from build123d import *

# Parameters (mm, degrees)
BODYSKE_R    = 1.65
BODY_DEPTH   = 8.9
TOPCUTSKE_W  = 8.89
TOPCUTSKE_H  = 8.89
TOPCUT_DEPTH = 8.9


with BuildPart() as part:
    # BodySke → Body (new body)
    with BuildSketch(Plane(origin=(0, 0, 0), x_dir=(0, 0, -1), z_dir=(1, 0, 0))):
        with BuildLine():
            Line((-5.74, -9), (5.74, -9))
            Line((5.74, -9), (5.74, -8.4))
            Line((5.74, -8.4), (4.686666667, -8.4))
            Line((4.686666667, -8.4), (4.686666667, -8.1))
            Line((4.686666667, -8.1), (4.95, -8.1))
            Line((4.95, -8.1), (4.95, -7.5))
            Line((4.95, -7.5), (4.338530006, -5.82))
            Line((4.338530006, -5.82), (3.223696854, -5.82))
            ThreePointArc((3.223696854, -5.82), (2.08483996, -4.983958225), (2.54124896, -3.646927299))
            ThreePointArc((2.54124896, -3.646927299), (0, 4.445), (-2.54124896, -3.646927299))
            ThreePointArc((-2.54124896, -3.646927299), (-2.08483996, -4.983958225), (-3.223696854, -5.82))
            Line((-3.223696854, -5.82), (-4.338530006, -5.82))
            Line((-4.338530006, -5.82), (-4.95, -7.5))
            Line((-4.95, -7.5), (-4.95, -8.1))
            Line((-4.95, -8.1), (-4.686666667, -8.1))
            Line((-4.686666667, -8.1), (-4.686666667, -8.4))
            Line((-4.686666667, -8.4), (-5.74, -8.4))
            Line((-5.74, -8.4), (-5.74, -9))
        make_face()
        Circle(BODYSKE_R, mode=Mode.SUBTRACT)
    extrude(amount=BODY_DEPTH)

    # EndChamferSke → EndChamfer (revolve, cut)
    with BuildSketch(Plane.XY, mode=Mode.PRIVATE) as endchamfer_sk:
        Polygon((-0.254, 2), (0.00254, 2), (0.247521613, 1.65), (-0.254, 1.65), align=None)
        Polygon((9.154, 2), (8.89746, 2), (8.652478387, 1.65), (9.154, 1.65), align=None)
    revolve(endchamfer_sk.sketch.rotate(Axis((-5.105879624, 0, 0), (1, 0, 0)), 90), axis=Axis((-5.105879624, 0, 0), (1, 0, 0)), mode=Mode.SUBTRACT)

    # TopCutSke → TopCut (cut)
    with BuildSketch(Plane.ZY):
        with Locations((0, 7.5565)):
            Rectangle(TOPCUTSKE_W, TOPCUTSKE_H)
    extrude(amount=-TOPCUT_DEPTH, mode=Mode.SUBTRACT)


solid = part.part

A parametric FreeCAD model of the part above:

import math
import FreeCAD as App
import Part
import Sketcher
Q = App.Units.Quantity

doc = App.newDocument("Part")
body = doc.addObject("PartDesign::Body", "Body")

sketch1 = body.newObject("Sketcher::SketchObject", "Sketch")
sketch1.AttachmentSupport = (doc.getObject("YZ_Plane"), [""])
sketch1.MapMode = "FlatFace"
sketch1.addGeometry([
    Part.LineSegment(App.Vector(-9, 5.74, 0), App.Vector(-9, -5.74, 0)),
    Part.LineSegment(App.Vector(-9, -5.74, 0), App.Vector(-8.4, -5.74, 0)),
    Part.LineSegment(App.Vector(-8.4, -5.74, 0), App.Vector(-8.4, -4.686667, 0)),
    Part.LineSegment(App.Vector(-8.4, -4.686667, 0), App.Vector(-8.1, -4.686667, 0)),
    Part.LineSegment(App.Vector(-8.1, -4.686667, 0), App.Vector(-8.1, -4.95, 0)),
    Part.LineSegment(App.Vector(-8.1, -4.95, 0), App.Vector(-7.5, -4.95, 0)),
    Part.LineSegment(App.Vector(-7.5, -4.95, 0), App.Vector(-5.82, -4.33853, 0)),
    Part.LineSegment(App.Vector(-5.82, -4.33853, 0), App.Vector(-5.82, -3.223697, 0)),
    Part.ArcOfCircle(Part.Circle(App.Vector(-4.626303, -3.223697, 0), App.Vector(0, 0, 1), 1.193697), math.radians(34.869524), math.radians(180)),
    Part.ArcOfCircle(Part.Circle(App.Vector(0, 0, 0), App.Vector(0, 0, 1), 4.445), math.radians(-145.130476), math.radians(145.130476)),
    Part.ArcOfCircle(Part.Circle(App.Vector(-4.626303, 3.223697, 0), App.Vector(0, 0, 1), 1.193697), math.radians(180), math.radians(325.130476)),
    Part.LineSegment(App.Vector(-5.82, 3.223697, 0), App.Vector(-5.82, 4.33853, 0)),
    Part.LineSegment(App.Vector(-5.82, 4.33853, 0), App.Vector(-7.5, 4.95, 0)),
    Part.LineSegment(App.Vector(-7.5, 4.95, 0), App.Vector(-8.1, 4.95, 0)),
    Part.LineSegment(App.Vector(-8.1, 4.95, 0), App.Vector(-8.1, 4.686667, 0)),
    Part.LineSegment(App.Vector(-8.1, 4.686667, 0), App.Vector(-8.4, 4.686667, 0)),
    Part.LineSegment(App.Vector(-8.4, 4.686667, 0), App.Vector(-8.4, 5.74, 0)),
    Part.LineSegment(App.Vector(-8.4, 5.74, 0), App.Vector(-9, 5.74, 0)),
    Part.Circle(App.Vector(0, 0, 0), App.Vector(0, 0, 1), 1.65),
], False)
sketch1.addConstraint([
    Sketcher.Constraint("Coincident", 0, 2, 1, 1),
    Sketcher.Constraint("Coincident", 1, 2, 2, 1),
    Sketcher.Constraint("Coincident", 2, 2, 3, 1),
    Sketcher.Constraint("Coincident", 3, 2, 4, 1),
    Sketcher.Constraint("Coincident", 4, 2, 5, 1),
    Sketcher.Constraint("Coincident", 5, 2, 6, 1),
    Sketcher.Constraint("Coincident", 6, 2, 7, 1),
    Sketcher.Constraint("Tangent", 7, 2, 8, 2),
    Sketcher.Constraint("Tangent", 8, 1, 9, 1),
    Sketcher.Constraint("Tangent", 9, 2, 10, 2),
    Sketcher.Constraint("Tangent", 10, 1, 11, 1),
    Sketcher.Constraint("Coincident", 11, 2, 12, 1),
    Sketcher.Constraint("Coincident", 12, 2, 13, 1),
    Sketcher.Constraint("Coincident", 13, 2, 14, 1),
    Sketcher.Constraint("Coincident", 14, 2, 15, 1),
    Sketcher.Constraint("Coincident", 15, 2, 16, 1),
    Sketcher.Constraint("Coincident", 16, 2, 17, 1),
    Sketcher.Constraint("Coincident", 17, 2, 0, 1),
    Sketcher.Constraint("Vertical", 0),
    Sketcher.Constraint("Horizontal", 1),
    Sketcher.Constraint("Vertical", 2),
    Sketcher.Constraint("Horizontal", 3),
    Sketcher.Constraint("Vertical", 4),
    Sketcher.Constraint("Horizontal", 5),
    Sketcher.Constraint("Vertical", 7),
    Sketcher.Constraint("Vertical", 11),
    Sketcher.Constraint("Horizontal", 13),
    Sketcher.Constraint("Vertical", 14),
    Sketcher.Constraint("Horizontal", 15),
    Sketcher.Constraint("Vertical", 16),
    Sketcher.Constraint("Horizontal", 17),
    Sketcher.Constraint("Coincident", 9, 3, -1, 1),
    Sketcher.Constraint("Coincident", 18, 3, -1, 1),
    Sketcher.Constraint("Equal", 8, 10),
    Sketcher.Constraint("Symmetric", 6, 2, 11, 2, -1),
    Sketcher.Constraint("Symmetric", 5, 2, 12, 2, -1),
    Sketcher.Constraint("Symmetric", 3, 2, 14, 2, -1),
    Sketcher.Constraint("Symmetric", 1, 2, 16, 2, -1),
    Sketcher.Constraint("Equal", 1, 5),
    Sketcher.Constraint("Diameter", 18, Q("3.3 mm")),
    Sketcher.Constraint("Angle", 6, Q("20 deg")),
    Sketcher.Constraint("DistanceX", 1, 1, 1, 2, Q("0.6 mm")),
    Sketcher.Constraint("DistanceX", 3, 1, 3, 2, Q("0.3 mm")),
    Sketcher.Constraint("DistanceX", 0, 2, -1, 1, Q("9 mm")),
    Sketcher.Constraint("Radius", 9, Q("4.445 mm")),
    Sketcher.Constraint("DistanceY", 0, 2, 0, 1, Q("11.48 mm")),
    Sketcher.Constraint("DistanceY", 4, 2, -1, 1, Q("4.95 mm")),
    Sketcher.Constraint("DistanceX", 6, 2, -1, 1, Q("5.82 mm")),
    Sketcher.Constraint("Radius", 8, Q("1.193697 mm")),
    Sketcher.Constraint("DistanceY", 2, 1, 2, 2, Q("1.053333 mm")),
])
pad1 = body.newObject("PartDesign::Pad", "Pad")
pad1.Profile = sketch1
pad1.Length = 8.9

sketch2 = body.newObject("Sketcher::SketchObject", "Sketch001")
sketch2.AttachmentSupport = (doc.getObject("XY_Plane"), [""])
sketch2.MapMode = "FlatFace"
sketch2.addGeometry([
    Part.LineSegment(App.Vector(0.00254, 2, 0), App.Vector(-0.254, 2, 0)),
    Part.LineSegment(App.Vector(-0.254, 2, 0), App.Vector(-0.254, 1.65, 0)),
    Part.LineSegment(App.Vector(-0.254, 1.65, 0), App.Vector(0.247522, 1.65, 0)),
    Part.LineSegment(App.Vector(0.247522, 1.65, 0), App.Vector(0.00254, 2, 0)),
    Part.LineSegment(App.Vector(9.154, 2, 0), App.Vector(8.89746, 2, 0)),
    Part.LineSegment(App.Vector(8.89746, 2, 0), App.Vector(8.652478, 1.65, 0)),
    Part.LineSegment(App.Vector(8.652478, 1.65, 0), App.Vector(9.154, 1.65, 0)),
    Part.LineSegment(App.Vector(9.154, 1.65, 0), App.Vector(9.154, 2, 0)),
], False)
sketch2.addConstraint([
    Sketcher.Constraint("Coincident", 0, 2, 1, 1),
    Sketcher.Constraint("Coincident", 1, 2, 2, 1),
    Sketcher.Constraint("Coincident", 2, 2, 3, 1),
    Sketcher.Constraint("Coincident", 3, 2, 0, 1),
    Sketcher.Constraint("Coincident", 4, 2, 5, 1),
    Sketcher.Constraint("Coincident", 5, 2, 6, 1),
    Sketcher.Constraint("Coincident", 6, 2, 7, 1),
    Sketcher.Constraint("Coincident", 7, 2, 4, 1),
    Sketcher.Constraint("Horizontal", 0),
    Sketcher.Constraint("Vertical", 1),
    Sketcher.Constraint("Horizontal", 2),
    Sketcher.Constraint("Horizontal", 4),
    Sketcher.Constraint("Horizontal", 6),
    Sketcher.Constraint("Vertical", 7),
    Sketcher.Constraint("Horizontal", 3, 2, 4, 2),
    Sketcher.Constraint("Horizontal", 2, 2, 5, 2),
    Sketcher.Constraint("Equal", 0, 4),
    Sketcher.Constraint("Equal", 2, 6),
    Sketcher.Constraint("DistanceY", -1, 1, 0, 2, Q("2 mm")),
    Sketcher.Constraint("DistanceY", 1, 2, 1, 1, Q("0.35 mm")),
    Sketcher.Constraint("Angle", 3, Q("124.99 deg")),
    Sketcher.Constraint("DistanceX", 0, 2, -1, 1, Q("0.254 mm")),
    Sketcher.Constraint("DistanceX", -1, 1, 6, 2, Q("9.154 mm")),
    Sketcher.Constraint("DistanceX", 0, 2, 0, 1, Q("0.25654 mm")),
])
groove = body.newObject("PartDesign::Groove", "Groove")
groove.Profile = sketch2
groove.ReferenceAxis = (sketch2, ["H_Axis"])
groove.Angle = 360

sketch3 = body.newObject("Sketcher::SketchObject", "Sketch002")
sketch3.AttachmentSupport = (doc.getObject("YZ_Plane"), [""])
sketch3.MapMode = "FlatFace"
sketch3.addGeometry([
    Part.LineSegment(App.Vector(12.0015, -4.445, 0), App.Vector(3.1115, -4.445, 0)),
    Part.LineSegment(App.Vector(3.1115, -4.445, 0), App.Vector(3.1115, 4.445, 0)),
    Part.LineSegment(App.Vector(3.1115, 4.445, 0), App.Vector(12.0015, 4.445, 0)),
    Part.LineSegment(App.Vector(12.0015, 4.445, 0), App.Vector(12.0015, -4.445, 0)),
], False)
sketch3.addConstraint([
    Sketcher.Constraint("Coincident", 0, 2, 1, 1),
    Sketcher.Constraint("Coincident", 1, 2, 2, 1),
    Sketcher.Constraint("Coincident", 2, 2, 3, 1),
    Sketcher.Constraint("Coincident", 3, 2, 0, 1),
    Sketcher.Constraint("Horizontal", 0),
    Sketcher.Constraint("Vertical", 1),
    Sketcher.Constraint("Horizontal", 2),
    Sketcher.Constraint("Vertical", 3),
    Sketcher.Constraint("Equal", 2, 1),
    Sketcher.Constraint("DistanceX", 0, 2, 0, 1, Q("8.89 mm")),
    Sketcher.Constraint("DistanceY", 0, 2, -1, 1, Q("4.445 mm")),
    Sketcher.Constraint("DistanceX", -1, 1, 0, 2, Q("3.1115 mm")),
])
pocket1 = body.newObject("PartDesign::Pocket", "Pocket")
pocket1.Profile = sketch3
pocket1.Length = 8.9
pocket1.Reversed = True

doc.recompute()
